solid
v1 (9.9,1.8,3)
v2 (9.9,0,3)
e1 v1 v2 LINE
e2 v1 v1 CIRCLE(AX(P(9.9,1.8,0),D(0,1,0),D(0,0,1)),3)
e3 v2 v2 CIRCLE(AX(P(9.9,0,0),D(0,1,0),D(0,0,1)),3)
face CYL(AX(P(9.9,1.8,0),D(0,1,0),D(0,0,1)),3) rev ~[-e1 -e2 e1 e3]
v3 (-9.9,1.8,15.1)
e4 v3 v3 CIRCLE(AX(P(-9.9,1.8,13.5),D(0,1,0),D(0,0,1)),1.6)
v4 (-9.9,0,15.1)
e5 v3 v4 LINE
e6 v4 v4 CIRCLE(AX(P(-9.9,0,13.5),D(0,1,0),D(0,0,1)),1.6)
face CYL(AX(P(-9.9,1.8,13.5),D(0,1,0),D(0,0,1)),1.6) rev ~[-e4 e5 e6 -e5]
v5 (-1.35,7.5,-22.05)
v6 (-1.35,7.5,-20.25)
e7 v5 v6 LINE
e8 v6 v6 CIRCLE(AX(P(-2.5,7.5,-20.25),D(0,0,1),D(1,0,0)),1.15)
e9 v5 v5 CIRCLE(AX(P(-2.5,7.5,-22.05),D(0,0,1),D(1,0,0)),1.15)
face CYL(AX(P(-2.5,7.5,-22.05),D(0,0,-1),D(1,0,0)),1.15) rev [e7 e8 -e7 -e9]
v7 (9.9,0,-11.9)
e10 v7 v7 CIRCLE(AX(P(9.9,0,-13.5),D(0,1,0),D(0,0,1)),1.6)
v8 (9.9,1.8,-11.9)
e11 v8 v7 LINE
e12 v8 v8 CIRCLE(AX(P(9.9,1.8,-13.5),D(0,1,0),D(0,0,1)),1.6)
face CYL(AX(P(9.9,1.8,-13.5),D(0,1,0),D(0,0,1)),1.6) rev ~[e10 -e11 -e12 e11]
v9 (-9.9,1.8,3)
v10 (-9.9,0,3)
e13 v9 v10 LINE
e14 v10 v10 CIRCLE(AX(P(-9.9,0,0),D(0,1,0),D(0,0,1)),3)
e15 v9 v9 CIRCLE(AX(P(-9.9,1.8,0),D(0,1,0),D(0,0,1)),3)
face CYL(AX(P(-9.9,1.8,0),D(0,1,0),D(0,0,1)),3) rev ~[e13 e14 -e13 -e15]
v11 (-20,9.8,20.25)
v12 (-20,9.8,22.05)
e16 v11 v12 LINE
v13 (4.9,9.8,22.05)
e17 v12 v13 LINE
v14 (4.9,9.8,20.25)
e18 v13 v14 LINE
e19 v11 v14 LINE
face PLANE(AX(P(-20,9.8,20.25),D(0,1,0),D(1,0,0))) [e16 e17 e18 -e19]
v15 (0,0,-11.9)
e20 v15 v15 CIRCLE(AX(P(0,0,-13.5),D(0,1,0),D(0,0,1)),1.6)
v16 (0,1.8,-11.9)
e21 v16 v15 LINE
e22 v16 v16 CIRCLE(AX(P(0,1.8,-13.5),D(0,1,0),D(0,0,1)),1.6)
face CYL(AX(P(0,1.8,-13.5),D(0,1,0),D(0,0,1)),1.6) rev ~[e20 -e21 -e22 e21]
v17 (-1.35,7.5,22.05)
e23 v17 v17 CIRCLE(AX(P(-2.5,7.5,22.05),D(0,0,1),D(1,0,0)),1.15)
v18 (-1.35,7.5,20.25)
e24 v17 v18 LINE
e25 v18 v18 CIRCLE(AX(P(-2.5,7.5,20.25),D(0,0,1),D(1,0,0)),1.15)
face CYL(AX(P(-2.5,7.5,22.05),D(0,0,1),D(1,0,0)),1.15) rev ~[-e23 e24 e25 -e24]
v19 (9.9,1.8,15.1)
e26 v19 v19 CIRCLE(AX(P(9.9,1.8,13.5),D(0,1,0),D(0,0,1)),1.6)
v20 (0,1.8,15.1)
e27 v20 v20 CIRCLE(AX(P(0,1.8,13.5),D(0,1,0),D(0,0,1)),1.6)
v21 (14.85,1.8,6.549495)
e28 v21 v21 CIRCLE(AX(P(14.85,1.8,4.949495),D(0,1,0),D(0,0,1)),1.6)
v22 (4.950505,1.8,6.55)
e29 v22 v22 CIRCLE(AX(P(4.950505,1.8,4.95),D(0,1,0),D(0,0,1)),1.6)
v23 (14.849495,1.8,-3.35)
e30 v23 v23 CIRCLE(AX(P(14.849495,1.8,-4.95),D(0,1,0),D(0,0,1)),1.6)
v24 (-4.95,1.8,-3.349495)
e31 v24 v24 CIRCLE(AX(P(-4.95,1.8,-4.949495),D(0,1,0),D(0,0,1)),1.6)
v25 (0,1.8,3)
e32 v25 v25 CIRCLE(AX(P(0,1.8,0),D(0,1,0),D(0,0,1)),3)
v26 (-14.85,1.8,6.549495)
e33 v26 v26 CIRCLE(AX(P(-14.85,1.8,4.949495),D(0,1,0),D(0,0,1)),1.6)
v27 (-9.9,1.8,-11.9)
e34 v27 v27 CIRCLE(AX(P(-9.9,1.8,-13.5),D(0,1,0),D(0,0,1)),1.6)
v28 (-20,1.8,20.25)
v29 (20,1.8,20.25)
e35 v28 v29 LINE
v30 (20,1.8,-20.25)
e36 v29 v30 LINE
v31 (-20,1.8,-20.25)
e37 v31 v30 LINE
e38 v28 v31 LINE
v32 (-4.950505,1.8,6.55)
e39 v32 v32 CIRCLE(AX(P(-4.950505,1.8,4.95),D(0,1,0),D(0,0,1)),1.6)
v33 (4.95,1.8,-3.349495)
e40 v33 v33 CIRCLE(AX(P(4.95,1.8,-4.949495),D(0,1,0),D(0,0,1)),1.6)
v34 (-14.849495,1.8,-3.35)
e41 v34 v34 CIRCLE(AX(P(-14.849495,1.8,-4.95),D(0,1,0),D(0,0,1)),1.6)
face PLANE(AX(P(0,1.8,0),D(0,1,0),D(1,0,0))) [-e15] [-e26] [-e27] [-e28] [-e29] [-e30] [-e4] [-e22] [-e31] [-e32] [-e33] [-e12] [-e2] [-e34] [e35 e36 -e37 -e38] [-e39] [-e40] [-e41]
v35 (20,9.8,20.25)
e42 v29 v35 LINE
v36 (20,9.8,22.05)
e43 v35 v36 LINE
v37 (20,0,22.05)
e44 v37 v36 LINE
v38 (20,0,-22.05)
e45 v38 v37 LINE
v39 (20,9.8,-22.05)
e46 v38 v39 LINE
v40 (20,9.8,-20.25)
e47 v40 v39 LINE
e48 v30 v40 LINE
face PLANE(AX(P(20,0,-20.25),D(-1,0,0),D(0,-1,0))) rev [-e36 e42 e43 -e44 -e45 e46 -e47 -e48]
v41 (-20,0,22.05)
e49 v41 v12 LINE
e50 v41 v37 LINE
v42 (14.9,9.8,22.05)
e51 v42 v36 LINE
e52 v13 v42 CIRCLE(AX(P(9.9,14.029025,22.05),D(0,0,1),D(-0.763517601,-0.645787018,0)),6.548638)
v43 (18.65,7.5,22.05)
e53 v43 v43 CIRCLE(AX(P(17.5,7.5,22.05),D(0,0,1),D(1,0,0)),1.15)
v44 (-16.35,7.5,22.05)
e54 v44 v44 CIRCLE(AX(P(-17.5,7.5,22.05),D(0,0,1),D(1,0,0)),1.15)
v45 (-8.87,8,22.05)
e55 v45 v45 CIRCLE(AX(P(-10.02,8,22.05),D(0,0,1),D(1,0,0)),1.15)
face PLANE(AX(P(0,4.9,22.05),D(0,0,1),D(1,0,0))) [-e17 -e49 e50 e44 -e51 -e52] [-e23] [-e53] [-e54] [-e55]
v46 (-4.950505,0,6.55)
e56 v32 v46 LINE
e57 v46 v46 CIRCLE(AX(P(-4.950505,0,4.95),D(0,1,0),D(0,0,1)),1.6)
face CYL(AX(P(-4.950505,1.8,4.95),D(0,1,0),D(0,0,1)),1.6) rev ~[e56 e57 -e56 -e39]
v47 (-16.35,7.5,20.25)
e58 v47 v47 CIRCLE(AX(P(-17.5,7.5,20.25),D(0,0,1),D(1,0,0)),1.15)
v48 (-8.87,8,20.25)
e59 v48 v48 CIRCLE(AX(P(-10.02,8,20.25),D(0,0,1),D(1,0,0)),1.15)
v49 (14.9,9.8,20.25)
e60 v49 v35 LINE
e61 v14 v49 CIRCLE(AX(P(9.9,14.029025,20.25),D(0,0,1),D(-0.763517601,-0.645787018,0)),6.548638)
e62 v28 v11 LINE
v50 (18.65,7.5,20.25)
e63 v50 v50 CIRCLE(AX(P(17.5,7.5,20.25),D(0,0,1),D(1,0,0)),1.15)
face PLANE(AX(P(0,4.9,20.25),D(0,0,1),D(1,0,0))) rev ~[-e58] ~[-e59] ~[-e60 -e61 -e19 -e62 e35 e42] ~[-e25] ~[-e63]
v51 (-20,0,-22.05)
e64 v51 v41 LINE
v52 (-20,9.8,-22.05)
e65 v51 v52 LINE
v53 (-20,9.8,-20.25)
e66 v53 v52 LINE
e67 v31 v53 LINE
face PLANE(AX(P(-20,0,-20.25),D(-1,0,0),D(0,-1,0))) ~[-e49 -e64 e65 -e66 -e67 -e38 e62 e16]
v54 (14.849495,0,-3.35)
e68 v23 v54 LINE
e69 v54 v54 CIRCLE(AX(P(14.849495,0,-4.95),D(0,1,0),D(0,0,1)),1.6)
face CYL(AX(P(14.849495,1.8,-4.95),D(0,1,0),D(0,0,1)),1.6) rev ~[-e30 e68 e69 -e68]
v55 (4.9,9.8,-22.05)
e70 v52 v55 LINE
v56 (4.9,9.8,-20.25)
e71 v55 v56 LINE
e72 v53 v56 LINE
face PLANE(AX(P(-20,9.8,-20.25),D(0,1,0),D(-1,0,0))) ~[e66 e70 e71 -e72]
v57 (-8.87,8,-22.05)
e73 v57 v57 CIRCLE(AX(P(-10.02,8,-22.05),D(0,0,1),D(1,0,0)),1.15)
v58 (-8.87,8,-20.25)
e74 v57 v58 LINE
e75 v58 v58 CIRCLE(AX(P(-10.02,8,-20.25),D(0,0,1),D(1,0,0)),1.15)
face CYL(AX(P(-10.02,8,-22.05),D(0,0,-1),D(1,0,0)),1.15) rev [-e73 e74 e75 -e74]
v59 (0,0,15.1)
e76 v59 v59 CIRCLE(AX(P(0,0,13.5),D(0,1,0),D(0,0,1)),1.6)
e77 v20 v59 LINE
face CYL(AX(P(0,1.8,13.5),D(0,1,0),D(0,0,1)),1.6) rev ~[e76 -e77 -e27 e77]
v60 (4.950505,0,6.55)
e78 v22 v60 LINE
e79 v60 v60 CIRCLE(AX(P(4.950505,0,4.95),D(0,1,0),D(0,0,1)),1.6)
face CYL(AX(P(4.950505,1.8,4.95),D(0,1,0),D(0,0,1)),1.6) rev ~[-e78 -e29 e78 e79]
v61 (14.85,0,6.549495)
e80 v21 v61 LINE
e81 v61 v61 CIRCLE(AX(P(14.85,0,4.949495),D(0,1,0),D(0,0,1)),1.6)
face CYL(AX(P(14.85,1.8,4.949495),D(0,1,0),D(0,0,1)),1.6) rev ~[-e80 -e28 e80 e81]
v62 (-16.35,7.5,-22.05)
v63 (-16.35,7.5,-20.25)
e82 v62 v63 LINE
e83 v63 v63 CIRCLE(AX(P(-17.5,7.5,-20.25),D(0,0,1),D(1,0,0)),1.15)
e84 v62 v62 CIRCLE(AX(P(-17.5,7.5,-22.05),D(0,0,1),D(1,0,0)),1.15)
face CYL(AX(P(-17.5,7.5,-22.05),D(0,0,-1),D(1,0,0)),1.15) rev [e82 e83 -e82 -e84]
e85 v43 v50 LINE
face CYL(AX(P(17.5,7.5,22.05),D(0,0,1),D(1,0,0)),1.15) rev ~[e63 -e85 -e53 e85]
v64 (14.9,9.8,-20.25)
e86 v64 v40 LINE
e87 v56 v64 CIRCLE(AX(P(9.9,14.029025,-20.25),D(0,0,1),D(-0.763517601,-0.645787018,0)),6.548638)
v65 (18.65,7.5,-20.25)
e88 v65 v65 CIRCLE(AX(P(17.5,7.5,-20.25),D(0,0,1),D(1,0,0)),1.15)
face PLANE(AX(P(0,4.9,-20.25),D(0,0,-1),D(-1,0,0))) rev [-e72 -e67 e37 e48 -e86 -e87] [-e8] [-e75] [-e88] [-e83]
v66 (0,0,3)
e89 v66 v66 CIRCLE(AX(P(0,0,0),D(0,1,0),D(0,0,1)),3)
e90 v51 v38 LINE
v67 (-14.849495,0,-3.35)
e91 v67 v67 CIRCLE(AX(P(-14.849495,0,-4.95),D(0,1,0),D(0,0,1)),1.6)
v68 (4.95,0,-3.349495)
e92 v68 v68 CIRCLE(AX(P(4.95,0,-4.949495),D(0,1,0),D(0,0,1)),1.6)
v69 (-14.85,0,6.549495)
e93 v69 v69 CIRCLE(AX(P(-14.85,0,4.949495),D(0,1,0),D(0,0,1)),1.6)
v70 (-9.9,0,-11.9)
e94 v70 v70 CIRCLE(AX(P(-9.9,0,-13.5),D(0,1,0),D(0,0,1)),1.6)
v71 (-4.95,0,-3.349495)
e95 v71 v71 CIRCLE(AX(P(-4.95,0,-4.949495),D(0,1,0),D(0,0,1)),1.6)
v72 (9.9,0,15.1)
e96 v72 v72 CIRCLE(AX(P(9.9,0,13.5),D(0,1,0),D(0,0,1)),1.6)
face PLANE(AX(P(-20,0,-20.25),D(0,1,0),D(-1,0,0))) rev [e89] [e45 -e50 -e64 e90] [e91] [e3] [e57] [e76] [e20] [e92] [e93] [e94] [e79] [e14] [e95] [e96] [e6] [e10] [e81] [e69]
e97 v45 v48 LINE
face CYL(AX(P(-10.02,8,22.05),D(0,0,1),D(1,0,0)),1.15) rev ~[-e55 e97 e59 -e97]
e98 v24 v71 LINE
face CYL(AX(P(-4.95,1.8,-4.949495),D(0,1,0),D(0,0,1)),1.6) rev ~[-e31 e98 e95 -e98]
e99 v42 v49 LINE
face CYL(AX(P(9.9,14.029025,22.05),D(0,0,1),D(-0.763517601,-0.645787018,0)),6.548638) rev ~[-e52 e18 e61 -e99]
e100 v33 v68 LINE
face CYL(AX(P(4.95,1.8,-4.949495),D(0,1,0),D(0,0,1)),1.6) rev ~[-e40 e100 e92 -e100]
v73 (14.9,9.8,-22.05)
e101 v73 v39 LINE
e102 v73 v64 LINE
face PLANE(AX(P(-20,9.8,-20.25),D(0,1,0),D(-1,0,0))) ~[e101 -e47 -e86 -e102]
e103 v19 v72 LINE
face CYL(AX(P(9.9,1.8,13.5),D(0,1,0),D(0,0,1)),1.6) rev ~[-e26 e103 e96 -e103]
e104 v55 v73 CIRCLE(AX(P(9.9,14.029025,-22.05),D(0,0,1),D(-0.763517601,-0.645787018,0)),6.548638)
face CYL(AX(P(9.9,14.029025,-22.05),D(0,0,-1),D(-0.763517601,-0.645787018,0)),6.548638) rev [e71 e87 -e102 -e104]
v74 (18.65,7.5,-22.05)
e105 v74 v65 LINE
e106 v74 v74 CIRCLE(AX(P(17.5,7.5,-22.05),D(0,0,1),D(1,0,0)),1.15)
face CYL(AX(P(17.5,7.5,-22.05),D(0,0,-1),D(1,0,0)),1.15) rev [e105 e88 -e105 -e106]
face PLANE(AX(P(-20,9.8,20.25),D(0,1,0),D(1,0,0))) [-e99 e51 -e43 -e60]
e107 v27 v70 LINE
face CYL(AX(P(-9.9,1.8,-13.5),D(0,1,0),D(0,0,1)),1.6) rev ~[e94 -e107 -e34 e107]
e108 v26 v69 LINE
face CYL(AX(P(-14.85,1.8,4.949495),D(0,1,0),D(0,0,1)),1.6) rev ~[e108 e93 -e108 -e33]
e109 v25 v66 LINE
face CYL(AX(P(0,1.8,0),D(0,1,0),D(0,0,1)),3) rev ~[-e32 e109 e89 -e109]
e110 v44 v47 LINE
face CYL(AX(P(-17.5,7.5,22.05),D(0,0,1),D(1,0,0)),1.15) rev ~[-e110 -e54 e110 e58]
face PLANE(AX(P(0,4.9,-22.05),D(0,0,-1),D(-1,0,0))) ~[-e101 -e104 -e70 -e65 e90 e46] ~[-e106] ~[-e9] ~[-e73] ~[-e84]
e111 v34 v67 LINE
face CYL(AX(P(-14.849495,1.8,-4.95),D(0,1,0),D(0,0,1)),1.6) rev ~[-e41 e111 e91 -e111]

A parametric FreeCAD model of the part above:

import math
import FreeCAD as App
import Part
import Sketcher
from FreeCAD import Vector


def add_polygon(sketch, points):
    """Adds a closed chain of lines whose ends are joined by coincident constraints."""
    first, n = sketch.GeometryCount, len(points)
    for a, b in zip(points, points[1:] + points[:1]):
        sketch.addGeometry(Part.LineSegment(App.Vector(*a, 0), App.Vector(*b, 0)), False)
    for i in range(n):
        sketch.addConstraint(Sketcher.Constraint("Coincident", first + i, 2, first + (i + 1) % n, 1))

doc = App.newDocument("Part")
body = doc.addObject("PartDesign::Body", "Body")

# Sketch on XZ plane
sketch1 = doc.addObject("Sketcher::SketchObject", "Sketch")
body.addObject(sketch1)
sketch1.AttachmentSupport = (doc.XZ_Plane, [""])
sketch1.MapMode = "FlatFace"
add_polygon(sketch1, [(-20, -20), (-20, 20), (20, 20), (20, -20)])  # lines 0-3
sketch1.addConstraint([
    Sketcher.Constraint("Vertical", 0),
    Sketcher.Constraint("Horizontal", 1),
    Sketcher.Constraint("Vertical", 2),
    Sketcher.Constraint("Horizontal", 3),
    Sketcher.Constraint("Symmetric", 0, 2, 2, 2, -1, 1),
    Sketcher.Constraint("DistanceX", 1, 1, 1, 2, 40.0),
    Sketcher.Constraint("DistanceY", 0, 1, 0, 2, 40.5),
])
pad1 = doc.addObject("PartDesign::Pad", "Pad")
body.addObject(pad1)
pad1.Profile = sketch1
pad1.Length = 1.8
pad1.Reversed = True

# Sketch on XZ plane
sketch2 = doc.addObject("Sketcher::SketchObject", "Sketch001")
body.addObject(sketch2)
sketch2.AttachmentSupport = (doc.XZ_Plane, [""])
sketch2.MapMode = "FlatFace"
sketch2.AttachmentOffset = App.Placement(Vector(0, 0, -1.8), App.Rotation())
sketch2.addGeometry([
    Part.Circle(Vector(-9.9, -13.5, 0), Vector(0, 0, 1), 1.6),  # 0
    Part.Circle(Vector(0, -13.5, 0), Vector(0, 0, 1), 1.6),  # 1
    Part.Circle(Vector(9.9, -13.5, 0), Vector(0, 0, 1), 1.6),  # 2
    Part.Circle(Vector(0, 0, 0), Vector(0, 0, 1), 3),  # 3
    Part.Circle(Vector(9.9, 0, 0), Vector(0, 0, 1), 3),  # 4
    Part.Circle(Vector(-9.9, 0, 0), Vector(0, 0, 1), 3),  # 5
    Part.Circle(Vector(-9.9, 13.5, 0), Vector(0, 0, 1), 1.6),  # 6
    Part.Circle(Vector(0, 13.5, 0), Vector(0, 0, 1), 1.6),  # 7
    Part.Circle(Vector(9.9, 13.5, 0), Vector(0, 0, 1), 1.6),  # 8
    Part.Circle(Vector(-5, -4.9, 0), Vector(0, 0, 1), 1.6),  # 9
    Part.Circle(Vector(5, -4.9, 0), Vector(0, 0, 1), 1.6),  # 10
    Part.Circle(Vector(14.8, -5, 0), Vector(0, 0, 1), 1.6),  # 11
    Part.Circle(Vector(14.8, 4.9, 0), Vector(0, 0, 1), 1.6),  # 12
    Part.Circle(Vector(5, 5, 0), Vector(0, 0, 1), 1.6),  # 13
    Part.Circle(Vector(-5, 5, 0), Vector(0, 0, 1), 1.6),  # 14
    Part.Circle(Vector(-14.8, 4.9, 0), Vector(0, 0, 1), 1.6),  # 15
    Part.Circle(Vector(-14.8, -5, 0), Vector(0, 0, 1), 1.6),  # 16
], False)
sketch2.addConstraint([
    Sketcher.Constraint("Coincident", 3, 3, -1, 1),
    Sketcher.Constraint("Equal", 0, 1),
    Sketcher.Constraint("Equal", 1, 2),
    Sketcher.Constraint("Equal", 3, 4),
    Sketcher.Constraint("Equal", 4, 5),
    Sketcher.Constraint("Equal", 2, 6),
    Sketcher.Constraint("Equal", 6, 7),
    Sketcher.Constraint("Equal", 7, 8),
    Sketcher.Constraint("Equal", 8, 9),
    Sketcher.Constraint("Equal", 9, 10),
    Sketcher.Constraint("Equal", 10, 11),
    Sketcher.Constraint("Equal", 11, 12),
    Sketcher.Constraint("Equal", 12, 13),
    Sketcher.Constraint("Equal", 13, 14),
    Sketcher.Constraint("Equal", 14, 15),
    Sketcher.Constraint("Equal", 15, 16),
    Sketcher.Constraint("Symmetric", 4, 3, 5, 3, -1, 1),
    Sketcher.Constraint("Symmetric", 2, 3, 6, 3, -1, 1),
    Sketcher.Constraint("Symmetric", 1, 3, 7, 3, -1, 1),
    Sketcher.Constraint("Symmetric", 0, 3, 8, 3, -1, 1),
    Sketcher.Constraint("Symmetric", 0, 3, 2, 3, -2),
    Sketcher.Constraint("Symmetric", 9, 3, 10, 3, -2),
    Sketcher.Constraint("Symmetric", 13, 3, 14, 3, -2),
    Sketcher.Constraint("Symmetric", 12, 3, 15, 3, -2),
    Sketcher.Constraint("Symmetric", 11, 3, 16, 3, -2),
    Sketcher.Constraint("PointOnObject", 1, 3, -2),
    Sketcher.Constraint("PointOnObject", 4, 3, -1),
    Sketcher.Constraint("Horizontal", 0, 3, 1, 3),
    Sketcher.Constraint("Vertical", 2, 3, 4, 3),
    Sketcher.Constraint("Diameter", 3, 6.0),
    Sketcher.Constraint("Diameter", 0, 3.2),
    Sketcher.Constraint("DistanceY", 0, 3, 6, 3, 27.0),
    Sketcher.Constraint("DistanceX", 0, 3, -1, 1, 9.9),
    Sketcher.Constraint("DistanceX", 9, 3, 10, 3, 9.9),
    Sketcher.Constraint("DistanceX", 10, 3, 12, 3, 9.9),
    Sketcher.Constraint("DistanceY", 16, 3, 14, 3, 9.9),
    Sketcher.Constraint("DistanceY", 11, 3, -1, 1, 4.95),
    Sketcher.Constraint("DistanceY", 10, 3, 12, 3, 9.89899),
    Sketcher.Constraint("DistanceX", 16, 3, 14, 3, 9.89899),
    Sketcher.Constraint("DistanceY", 9, 3, -1, 1, 4.949495),
    Sketcher.Constraint("DistanceX", -1, 1, 11, 3, 14.849495),
])
pocket1 = doc.addObject("PartDesign::Pocket", "Pocket")
body.addObject(pocket1)
pocket1.Profile = sketch2
pocket1.Length = 2
pocket1.Reversed = True

# Sketch on XY plane
sketch3 = doc.addObject("Sketcher::SketchObject", "Sketch002")
body.addObject(sketch3)
sketch3.AttachmentSupport = (doc.XY_Plane, [""])
sketch3.MapMode = "FlatFace"
sketch3.AttachmentOffset = App.Placement(Vector(0, 0, 20.25), App.Rotation())
add_polygon(sketch3, [(-20, 10), (-20, 0), (20, 0), (20, 10)])  # lines 0-3
sketch3.addConstraint([
    Sketcher.Constraint("Vertical", 0),
    Sketcher.Constraint("Horizontal", 1),
    Sketcher.Constraint("Vertical", 2),
    Sketcher.Constraint("Horizontal", 3),
    Sketcher.Constraint("Symmetric", 0, 2, 1, 2, -1, 1),
    Sketcher.Constraint("DistanceX", 1, 1, 1, 2, 40.0),
    Sketcher.Constraint("DistanceY", 0, 2, 0, 1, 9.8),
])
pad2 = doc.addObject("PartDesign::Pad", "Pad001")
body.addObject(pad2)
pad2.Profile = sketch3
pad2.Length = 1.8

# Sketch on XY plane
sketch4 = doc.addObject("Sketcher::SketchObject", "Sketch003")
body.addObject(sketch4)
sketch4.AttachmentSupport = (doc.XY_Plane, [""])
sketch4.MapMode = "FlatFace"
sketch4.AttachmentOffset = App.Placement(Vector(0, 0, 22.05), App.Rotation())
sketch4.addGeometry([
    Part.Circle(Vector(-17.5, 7.5, 0), Vector(0, 0, 1), 1.1),  # 0
    Part.Circle(Vector(-2.5, 7.5, 0), Vector(0, 0, 1), 1.1),  # 1
    Part.Circle(Vector(17.5, 7.5, 0), Vector(0, 0, 1), 1.1),  # 2
    Part.Circle(Vector(-10, 8, 0), Vector(0, 0, 1), 1.1),  # 3
    Part.LineSegment(Vector(14.9, 9.8, 0), Vector(4.9, 9.8, 0)),  # 4
    Part.ArcOfCircle(Part.Circle(Vector(9.9, 14, 0), Vector(0, 0, 1), 6.5), math.radians(-140), math.radians(-40)),  # 5
], False)
sketch4.addConstraint([
    Sketcher.Constraint("Coincident", 4, 1, 5, 2),
    Sketcher.Constraint("Coincident", 5, 1, 4, 2),
    Sketcher.Constraint("Horizontal", 4),
    Sketcher.Constraint("Equal", 0, 1),
    Sketcher.Constraint("Equal", 1, 2),
    Sketcher.Constraint("Equal", 2, 3),
    Sketcher.Constraint("Symmetric", 0, 3, 2, 3, -2),
    Sketcher.Constraint("Horizontal", 0, 3, 1, 3),
    Sketcher.Constraint("Diameter", 0, 2.3),
    Sketcher.Constraint("DistanceX", 4, 2, 4, 1, 10.0),
    Sketcher.Constraint("DistanceY", -1, 1, 3, 3, 8.0),
    Sketcher.Constraint("DistanceX", 0, 3, 1, 3, 15.0),
    Sketcher.Constraint("DistanceX", 1, 3, 2, 3, 20.0),
    Sketcher.Constraint("DistanceY", -1, 1, 0, 3, 7.5),
    Sketcher.Constraint("DistanceX", -1, 1, 5, 3, 9.9),
    Sketcher.Constraint("DistanceY", -1, 1, 4, 1, 9.8),
    Sketcher.Constraint("DistanceX", 3, 3, -1, 1, 10.02),
    Sketcher.Constraint("Radius", 5, 6.548638),
])
pocket2 = doc.addObject("PartDesign::Pocket", "Pocket001")
body.addObject(pocket2)
pocket2.Profile = sketch4
pocket2.Length = 1.8
doc.recompute()

mirrored = doc.addObject("PartDesign::Mirrored", "Mirrored")
body.addObject(mirrored)
mirrored.Originals = [pad2, pocket2]
mirrored.MirrorPlane = (doc.XY_Plane, [""])
body.Tip = mirrored

doc.recompute()
